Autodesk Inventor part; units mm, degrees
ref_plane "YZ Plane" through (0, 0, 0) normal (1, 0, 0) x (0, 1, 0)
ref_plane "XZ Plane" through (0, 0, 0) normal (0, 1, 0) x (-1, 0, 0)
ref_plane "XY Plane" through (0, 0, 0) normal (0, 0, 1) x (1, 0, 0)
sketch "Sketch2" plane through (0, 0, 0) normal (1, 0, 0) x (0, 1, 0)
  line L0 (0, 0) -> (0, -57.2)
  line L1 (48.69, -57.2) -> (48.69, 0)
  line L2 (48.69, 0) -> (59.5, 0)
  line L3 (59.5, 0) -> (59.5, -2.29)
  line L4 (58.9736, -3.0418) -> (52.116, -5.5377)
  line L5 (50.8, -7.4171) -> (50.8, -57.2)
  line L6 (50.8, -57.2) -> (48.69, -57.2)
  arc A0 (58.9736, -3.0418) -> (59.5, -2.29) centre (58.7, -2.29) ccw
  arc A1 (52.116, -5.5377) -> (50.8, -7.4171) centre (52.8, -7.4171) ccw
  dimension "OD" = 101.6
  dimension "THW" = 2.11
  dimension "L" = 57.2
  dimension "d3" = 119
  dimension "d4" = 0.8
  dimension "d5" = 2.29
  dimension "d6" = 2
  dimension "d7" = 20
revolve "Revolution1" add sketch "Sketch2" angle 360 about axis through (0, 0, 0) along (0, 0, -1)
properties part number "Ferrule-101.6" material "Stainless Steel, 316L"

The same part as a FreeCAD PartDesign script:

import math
import FreeCAD as App
import Part
import Sketcher
Q = App.Units.Quantity

doc = App.newDocument("Part")
body = doc.addObject("PartDesign::Body", "Body")

# Sketch on YZ plane
sketch1 = body.newObject("Sketcher::SketchObject", "Sketch")
sketch1.AttachmentSupport = (doc.getObject("YZ_Plane"), [""])
sketch1.MapMode = "FlatFace"
sketch1.addGeometry([
    Part.LineSegment(App.Vector(48.7, 0, 0), App.Vector(48.7, -57.2, 0)),  # 0
    Part.LineSegment(App.Vector(48.7, -57.2, 0), App.Vector(50.8, -57.2, 0)),  # 1
    Part.LineSegment(App.Vector(50.8, -57.2, 0), App.Vector(50.8, -7.4, 0)),  # 2
    Part.ArcOfCircle(Part.Circle(App.Vector(52.8, -7.4, 0), App.Vector(0, 0, 1), 2), math.radians(110), math.radians(180)),  # 3
    Part.LineSegment(App.Vector(52.1, -5.5, 0), App.Vector(59, -3, 0)),  # 4
    Part.ArcOfCircle(Part.Circle(App.Vector(58.7, -2.3, 0), App.Vector(0, 0, 1), 0.8), math.radians(-70), math.radians(0)),  # 5
    Part.LineSegment(App.Vector(59.5, -2.3, 0), App.Vector(59.5, 0, 0)),  # 6
    Part.LineSegment(App.Vector(59.5, 0, 0), App.Vector(48.7, 0, 0)),  # 7
], False)
sketch1.addConstraint([
    Sketcher.Constraint("Coincident", 0, 2, 1, 1),
    Sketcher.Constraint("Coincident", 1, 2, 2, 1),
    Sketcher.Constraint("Tangent", 2, 2, 3, 2),
    Sketcher.Constraint("Tangent", 3, 1, 4, 1),
    Sketcher.Constraint("Tangent", 4, 2, 5, 1),
    Sketcher.Constraint("Tangent", 5, 2, 6, 1),
    Sketcher.Constraint("Coincident", 6, 2, 7, 1),
    Sketcher.Constraint("Coincident", 7, 2, 0, 1),
    Sketcher.Constraint("Vertical", 0),
    Sketcher.Constraint("Horizontal", 1),
    Sketcher.Constraint("Vertical", 2),
    Sketcher.Constraint("Vertical", 6),
    Sketcher.Constraint("Horizontal", 7),
    Sketcher.Constraint("PointOnObject", 6, 2, -1),
    Sketcher.Constraint("Radius", 3, 2.0),
    Sketcher.Constraint("Radius", 5, 0.8),
    Sketcher.Constraint("Angle", 4, Q("19.9995 deg")),
    Sketcher.Constraint("DistanceY", 0, 2, 0, 1, 57.2),
    Sketcher.Constraint("DistanceX", 1, 1, 1, 2, 2.11),
    Sketcher.Constraint("DistanceY", 6, 1, 6, 2, 2.29),
    Sketcher.Constraint("DistanceX", 7, 2, 7, 1, 10.81),
    Sketcher.Constraint("DistanceX", -1, 1, 3, 3, 52.8),
])
revolution = body.newObject("PartDesign::Revolution", "Revolution")
revolution.Profile = sketch1
revolution.ReferenceAxis = (sketch1, ["V_Axis"])
revolution.Angle = 360

doc.recompute()
